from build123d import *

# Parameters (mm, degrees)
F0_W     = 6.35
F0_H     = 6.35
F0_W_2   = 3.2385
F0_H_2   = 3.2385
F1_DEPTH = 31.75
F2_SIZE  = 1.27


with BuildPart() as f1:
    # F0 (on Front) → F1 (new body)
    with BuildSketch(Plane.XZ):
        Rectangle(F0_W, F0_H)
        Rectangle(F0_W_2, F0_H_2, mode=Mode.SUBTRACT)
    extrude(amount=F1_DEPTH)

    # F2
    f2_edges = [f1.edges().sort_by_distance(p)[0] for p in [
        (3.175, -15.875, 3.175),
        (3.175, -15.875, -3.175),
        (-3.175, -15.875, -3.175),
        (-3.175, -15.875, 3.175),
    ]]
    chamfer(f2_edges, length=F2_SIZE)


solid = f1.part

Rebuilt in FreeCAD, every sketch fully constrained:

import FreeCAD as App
import Part
import Sketcher
Q = App.Units.Quantity


def edges_at(feature, points):
    """Names of the edges that pass closest to the given points."""
    edges = feature.Shape.Edges
    near = lambda p: min(range(len(edges)), key=lambda i: edges[i].distToShape(Part.Vertex(*p))[0])
    return sorted({f"Edge{near(p) + 1}" for p in points})

doc = App.newDocument("Part")
body = doc.addObject("PartDesign::Body", "Body")

# Sketch on XZ plane
sketch1 = body.newObject("Sketcher::SketchObject", "Sketch")
sketch1.AttachmentSupport = (doc.getObject("XZ_Plane"), [""])
sketch1.MapMode = "FlatFace"
sketch1.addGeometry([
    Part.LineSegment(App.Vector(-3.2, 3.2, 0), App.Vector(-3.2, -3.2, 0)),  # 0
    Part.LineSegment(App.Vector(-3.2, -3.2, 0), App.Vector(3.2, -3.2, 0)),  # 1
    Part.LineSegment(App.Vector(3.2, -3.2, 0), App.Vector(3.2, 3.2, 0)),  # 2
    Part.LineSegment(App.Vector(3.2, 3.2, 0), App.Vector(-3.2, 3.2, 0)),  # 3
    Part.LineSegment(App.Vector(1.6, -1.6, 0), App.Vector(-1.6, -1.6, 0)),  # 4
    Part.LineSegment(App.Vector(-1.6, -1.6, 0), App.Vector(-1.6, 1.6, 0)),  # 5
    Part.LineSegment(App.Vector(-1.6, 1.6, 0), App.Vector(1.6, 1.6, 0)),  # 6
    Part.LineSegment(App.Vector(1.6, 1.6, 0), App.Vector(1.6, -1.6, 0)),  # 7
], False)
sketch1.addConstraint([
    Sketcher.Constraint("Coincident", 0, 2, 1, 1),
    Sketcher.Constraint("Coincident", 1, 2, 2, 1),
    Sketcher.Constraint("Coincident", 2, 2, 3, 1),
    Sketcher.Constraint("Coincident", 3, 2, 0, 1),
    Sketcher.Constraint("Coincident", 4, 2, 5, 1),
    Sketcher.Constraint("Coincident", 5, 2, 6, 1),
    Sketcher.Constraint("Coincident", 6, 2, 7, 1),
    Sketcher.Constraint("Coincident", 7, 2, 4, 1),
    Sketcher.Constraint("Vertical", 0),
    Sketcher.Constraint("Horizontal", 1),
    Sketcher.Constraint("Vertical", 2),
    Sketcher.Constraint("Horizontal", 3),
    Sketcher.Constraint("Horizontal", 4),
    Sketcher.Constraint("Vertical", 5),
    Sketcher.Constraint("Horizontal", 6),
    Sketcher.Constraint("Vertical", 7),
    Sketcher.Constraint("Symmetric", 0, 2, 2, 2, -1, 1),
    Sketcher.Constraint("Symmetric", 4, 2, 6, 2, -1, 1),
    Sketcher.Constraint("Equal", 3, 0),
    Sketcher.Constraint("Equal", 6, 5),
    Sketcher.Constraint("DistanceX", 1, 1, 1, 2, Q("0.25 in")),
    Sketcher.Constraint("DistanceX", 4, 2, 4, 1, Q("0.1275 in")),
])
pad1 = body.newObject("PartDesign::Pad", "Pad")
pad1.Profile = sketch1
pad1.Length = Q("1.25 in")
doc.recompute()

chamfer = body.newObject("PartDesign::Chamfer", "Chamfer")
chamfer.Base = (pad1, edges_at(pad1, [
    (3.175, -15.875, 3.175),
    (3.175, -15.875, -3.175),
    (-3.175, -15.875, -3.175),
    (-3.175, -15.875, 3.175),
]))
chamfer.Size = Q("0.05 in")

doc.recompute()
